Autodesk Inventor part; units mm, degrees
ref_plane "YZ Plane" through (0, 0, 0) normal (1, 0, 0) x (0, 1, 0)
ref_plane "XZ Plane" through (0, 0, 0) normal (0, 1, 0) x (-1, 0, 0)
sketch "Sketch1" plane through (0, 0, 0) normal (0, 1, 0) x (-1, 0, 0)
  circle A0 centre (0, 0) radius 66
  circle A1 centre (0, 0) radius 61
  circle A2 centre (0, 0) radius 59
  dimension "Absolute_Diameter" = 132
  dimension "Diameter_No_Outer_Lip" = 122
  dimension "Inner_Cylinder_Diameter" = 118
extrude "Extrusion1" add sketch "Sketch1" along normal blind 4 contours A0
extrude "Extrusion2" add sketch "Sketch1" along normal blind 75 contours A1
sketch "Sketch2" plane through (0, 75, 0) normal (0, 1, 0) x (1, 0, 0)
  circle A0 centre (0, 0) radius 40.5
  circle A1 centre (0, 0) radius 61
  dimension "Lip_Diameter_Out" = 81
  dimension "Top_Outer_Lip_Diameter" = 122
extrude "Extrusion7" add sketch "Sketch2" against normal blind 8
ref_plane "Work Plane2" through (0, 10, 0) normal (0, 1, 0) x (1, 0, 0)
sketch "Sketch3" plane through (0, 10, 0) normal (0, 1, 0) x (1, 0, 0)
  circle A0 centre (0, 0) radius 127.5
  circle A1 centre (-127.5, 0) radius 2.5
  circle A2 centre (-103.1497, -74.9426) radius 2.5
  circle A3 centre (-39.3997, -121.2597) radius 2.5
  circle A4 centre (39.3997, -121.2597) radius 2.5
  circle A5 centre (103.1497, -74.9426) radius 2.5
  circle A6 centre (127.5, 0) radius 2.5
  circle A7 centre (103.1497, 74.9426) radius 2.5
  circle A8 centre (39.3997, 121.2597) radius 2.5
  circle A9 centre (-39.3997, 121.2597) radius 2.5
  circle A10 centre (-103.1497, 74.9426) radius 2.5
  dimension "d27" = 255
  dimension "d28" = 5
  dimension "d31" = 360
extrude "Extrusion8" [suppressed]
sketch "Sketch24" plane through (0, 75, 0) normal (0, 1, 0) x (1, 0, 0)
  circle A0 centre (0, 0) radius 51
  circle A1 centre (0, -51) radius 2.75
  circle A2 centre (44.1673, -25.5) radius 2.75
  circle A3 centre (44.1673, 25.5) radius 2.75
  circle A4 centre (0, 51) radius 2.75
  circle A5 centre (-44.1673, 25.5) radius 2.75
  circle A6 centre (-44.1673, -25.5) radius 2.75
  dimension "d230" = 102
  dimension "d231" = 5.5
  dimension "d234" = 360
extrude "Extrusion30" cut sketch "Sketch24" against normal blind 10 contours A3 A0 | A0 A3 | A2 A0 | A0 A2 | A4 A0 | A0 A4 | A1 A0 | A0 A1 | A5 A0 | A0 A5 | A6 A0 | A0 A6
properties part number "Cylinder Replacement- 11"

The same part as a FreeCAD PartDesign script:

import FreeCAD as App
import Part
import Sketcher

doc = App.newDocument("Part")
params = doc.addObject("Spreadsheet::Sheet", "Params")
for row, (alias, value) in enumerate([
    ("sketch1_diameter", "132 mm"),
    ("sketch1_diameter2", "122 mm"),
    ("pad1_length", "4 mm"),
    ("sketch2_diameter", "122 mm"),
    ("sketch2_diameter2", "118 mm"),
    ("pad2_length", "75 mm"),
    ("sketch3_diameter", "122 mm"),
    ("sketch3_diameter2", "81 mm"),
    ("pad3_length", "8 mm"),
    ("sketch4_diameter", "5.5 mm"),
    ("pocket1_length", "10 mm"),
], start=1):
    params.set(f"A{row}", alias)
    params.set(f"B{row}", "=" + value)
    params.setAlias(f"B{row}", alias)

body = doc.addObject("PartDesign::Body", "Body")

# Sketch on XZ plane
sketch1 = body.newObject("Sketcher::SketchObject", "Sketch")
sketch1.AttachmentSupport = (doc.getObject("XZ_Plane"), [""])
sketch1.MapMode = "FlatFace"
sketch1.addGeometry([
    Part.Circle(App.Vector(0, 0, 0), App.Vector(0, 0, 1), 66),
    Part.Circle(App.Vector(0, 0, 0), App.Vector(0, 0, 1), 61),
], False)
sketch1.addConstraint([
    Sketcher.Constraint("Coincident", 0, 3, -1, 1),
    Sketcher.Constraint("Coincident", 1, 3, -1, 1),
    Sketcher.Constraint("Diameter", 0, 132.0),
    Sketcher.Constraint("Diameter", 1, 122.0),
])
sketch1.setExpression("Constraints[2]", "Params.sketch1_diameter")
sketch1.setExpression("Constraints[3]", "Params.sketch1_diameter2")
pad1 = body.newObject("PartDesign::Pad", "Pad")
pad1.Profile = sketch1
pad1.setExpression("Length", "Params.pad1_length")
pad1.Reversed = True

# Sketch on XZ plane
sketch2 = body.newObject("Sketcher::SketchObject", "Sketch001")
sketch2.AttachmentSupport = (doc.getObject("XZ_Plane"), [""])
sketch2.MapMode = "FlatFace"
sketch2.addGeometry([
    Part.Circle(App.Vector(0, 0, 0), App.Vector(0, 0, 1), 61),
    Part.Circle(App.Vector(0, 0, 0), App.Vector(0, 0, 1), 59),
], False)
sketch2.addConstraint([
    Sketcher.Constraint("Coincident", 0, 3, -1, 1),
    Sketcher.Constraint("Coincident", 1, 3, -1, 1),
    Sketcher.Constraint("Diameter", 0, 122.0),
    Sketcher.Constraint("Diameter", 1, 118.0),
])
sketch2.setExpression("Constraints[2]", "Params.sketch2_diameter")
sketch2.setExpression("Constraints[3]", "Params.sketch2_diameter2")
pad2 = body.newObject("PartDesign::Pad", "Pad001")
pad2.Profile = sketch2
pad2.setExpression("Length", "Params.pad2_length")
pad2.Reversed = True

# Sketch on XZ plane
sketch3 = body.newObject("Sketcher::SketchObject", "Sketch002")
sketch3.AttachmentSupport = (doc.getObject("XZ_Plane"), [""])
sketch3.MapMode = "FlatFace"
sketch3.AttachmentOffset = App.Placement(App.Vector(0, 0, -75), App.Rotation())
sketch3.addGeometry([
    Part.Circle(App.Vector(0, 0, 0), App.Vector(0, 0, 1), 61),
    Part.Circle(App.Vector(0, 0, 0), App.Vector(0, 0, 1), 40.5),
], False)
sketch3.addConstraint([
    Sketcher.Constraint("Coincident", 0, 3, -1, 1),
    Sketcher.Constraint("Coincident", 1, 3, -1, 1),
    Sketcher.Constraint("Diameter", 0, 122.0),
    Sketcher.Constraint("Diameter", 1, 81.0),
])
sketch3.setExpression("Constraints[2]", "Params.sketch3_diameter")
sketch3.setExpression("Constraints[3]", "Params.sketch3_diameter2")
pad3 = body.newObject("PartDesign::Pad", "Pad002")
pad3.Profile = sketch3
pad3.setExpression("Length", "Params.pad3_length")

# Sketch on XZ plane
sketch4 = body.newObject("Sketcher::SketchObject", "Sketch003")
sketch4.AttachmentSupport = (doc.getObject("XZ_Plane"), [""])
sketch4.MapMode = "FlatFace"
sketch4.AttachmentOffset = App.Placement(App.Vector(0, 0, -75), App.Rotation())
sketch4.addGeometry([
    Part.Circle(App.Vector(44.1673, -25.5, 0), App.Vector(0, 0, 1), 2.75),  # 0
    Part.Circle(App.Vector(44.1673, 25.5, 0), App.Vector(0, 0, 1), 2.75),  # 1
    Part.Circle(App.Vector(0, -51, 0), App.Vector(0, 0, 1), 2.75),  # 2
    Part.Circle(App.Vector(0, 51, 0), App.Vector(0, 0, 1), 2.75),  # 3
    Part.Circle(App.Vector(-44.1673, -25.5, 0), App.Vector(0, 0, 1), 2.75),  # 4
    Part.Circle(App.Vector(-44.1673, 25.5, 0), App.Vector(0, 0, 1), 2.75),  # 5
], False)
sketch4.addConstraint([
    Sketcher.Constraint("Equal", 0, 1),
    Sketcher.Constraint("Equal", 1, 2),
    Sketcher.Constraint("Equal", 2, 3),
    Sketcher.Constraint("Equal", 3, 4),
    Sketcher.Constraint("Equal", 4, 5),
    Sketcher.Constraint("Symmetric", 2, 3, 3, 3, -1, 1),
    Sketcher.Constraint("Symmetric", 1, 3, 4, 3, -1, 1),
    Sketcher.Constraint("Symmetric", 0, 3, 5, 3, -1, 1),
    Sketcher.Constraint("Symmetric", 0, 3, 4, 3, -2),
    Sketcher.Constraint("PointOnObject", 2, 3, -2),
    Sketcher.Constraint("Diameter", 0, 5.5),
    Sketcher.Constraint("DistanceY", 2, 3, 3, 3, 102.0),
    Sketcher.Constraint("DistanceY", 0, 3, 1, 3, 51.0),
    Sketcher.Constraint("DistanceX", -1, 1, 0, 3, 44.1673),
])
sketch4.setExpression("Constraints[10]", "Params.sketch4_diameter")
pocket1 = body.newObject("PartDesign::Pocket", "Pocket")
pocket1.Profile = sketch4
pocket1.setExpression("Length", "Params.pocket1_length")
pocket1.Reversed = True

doc.recompute()
